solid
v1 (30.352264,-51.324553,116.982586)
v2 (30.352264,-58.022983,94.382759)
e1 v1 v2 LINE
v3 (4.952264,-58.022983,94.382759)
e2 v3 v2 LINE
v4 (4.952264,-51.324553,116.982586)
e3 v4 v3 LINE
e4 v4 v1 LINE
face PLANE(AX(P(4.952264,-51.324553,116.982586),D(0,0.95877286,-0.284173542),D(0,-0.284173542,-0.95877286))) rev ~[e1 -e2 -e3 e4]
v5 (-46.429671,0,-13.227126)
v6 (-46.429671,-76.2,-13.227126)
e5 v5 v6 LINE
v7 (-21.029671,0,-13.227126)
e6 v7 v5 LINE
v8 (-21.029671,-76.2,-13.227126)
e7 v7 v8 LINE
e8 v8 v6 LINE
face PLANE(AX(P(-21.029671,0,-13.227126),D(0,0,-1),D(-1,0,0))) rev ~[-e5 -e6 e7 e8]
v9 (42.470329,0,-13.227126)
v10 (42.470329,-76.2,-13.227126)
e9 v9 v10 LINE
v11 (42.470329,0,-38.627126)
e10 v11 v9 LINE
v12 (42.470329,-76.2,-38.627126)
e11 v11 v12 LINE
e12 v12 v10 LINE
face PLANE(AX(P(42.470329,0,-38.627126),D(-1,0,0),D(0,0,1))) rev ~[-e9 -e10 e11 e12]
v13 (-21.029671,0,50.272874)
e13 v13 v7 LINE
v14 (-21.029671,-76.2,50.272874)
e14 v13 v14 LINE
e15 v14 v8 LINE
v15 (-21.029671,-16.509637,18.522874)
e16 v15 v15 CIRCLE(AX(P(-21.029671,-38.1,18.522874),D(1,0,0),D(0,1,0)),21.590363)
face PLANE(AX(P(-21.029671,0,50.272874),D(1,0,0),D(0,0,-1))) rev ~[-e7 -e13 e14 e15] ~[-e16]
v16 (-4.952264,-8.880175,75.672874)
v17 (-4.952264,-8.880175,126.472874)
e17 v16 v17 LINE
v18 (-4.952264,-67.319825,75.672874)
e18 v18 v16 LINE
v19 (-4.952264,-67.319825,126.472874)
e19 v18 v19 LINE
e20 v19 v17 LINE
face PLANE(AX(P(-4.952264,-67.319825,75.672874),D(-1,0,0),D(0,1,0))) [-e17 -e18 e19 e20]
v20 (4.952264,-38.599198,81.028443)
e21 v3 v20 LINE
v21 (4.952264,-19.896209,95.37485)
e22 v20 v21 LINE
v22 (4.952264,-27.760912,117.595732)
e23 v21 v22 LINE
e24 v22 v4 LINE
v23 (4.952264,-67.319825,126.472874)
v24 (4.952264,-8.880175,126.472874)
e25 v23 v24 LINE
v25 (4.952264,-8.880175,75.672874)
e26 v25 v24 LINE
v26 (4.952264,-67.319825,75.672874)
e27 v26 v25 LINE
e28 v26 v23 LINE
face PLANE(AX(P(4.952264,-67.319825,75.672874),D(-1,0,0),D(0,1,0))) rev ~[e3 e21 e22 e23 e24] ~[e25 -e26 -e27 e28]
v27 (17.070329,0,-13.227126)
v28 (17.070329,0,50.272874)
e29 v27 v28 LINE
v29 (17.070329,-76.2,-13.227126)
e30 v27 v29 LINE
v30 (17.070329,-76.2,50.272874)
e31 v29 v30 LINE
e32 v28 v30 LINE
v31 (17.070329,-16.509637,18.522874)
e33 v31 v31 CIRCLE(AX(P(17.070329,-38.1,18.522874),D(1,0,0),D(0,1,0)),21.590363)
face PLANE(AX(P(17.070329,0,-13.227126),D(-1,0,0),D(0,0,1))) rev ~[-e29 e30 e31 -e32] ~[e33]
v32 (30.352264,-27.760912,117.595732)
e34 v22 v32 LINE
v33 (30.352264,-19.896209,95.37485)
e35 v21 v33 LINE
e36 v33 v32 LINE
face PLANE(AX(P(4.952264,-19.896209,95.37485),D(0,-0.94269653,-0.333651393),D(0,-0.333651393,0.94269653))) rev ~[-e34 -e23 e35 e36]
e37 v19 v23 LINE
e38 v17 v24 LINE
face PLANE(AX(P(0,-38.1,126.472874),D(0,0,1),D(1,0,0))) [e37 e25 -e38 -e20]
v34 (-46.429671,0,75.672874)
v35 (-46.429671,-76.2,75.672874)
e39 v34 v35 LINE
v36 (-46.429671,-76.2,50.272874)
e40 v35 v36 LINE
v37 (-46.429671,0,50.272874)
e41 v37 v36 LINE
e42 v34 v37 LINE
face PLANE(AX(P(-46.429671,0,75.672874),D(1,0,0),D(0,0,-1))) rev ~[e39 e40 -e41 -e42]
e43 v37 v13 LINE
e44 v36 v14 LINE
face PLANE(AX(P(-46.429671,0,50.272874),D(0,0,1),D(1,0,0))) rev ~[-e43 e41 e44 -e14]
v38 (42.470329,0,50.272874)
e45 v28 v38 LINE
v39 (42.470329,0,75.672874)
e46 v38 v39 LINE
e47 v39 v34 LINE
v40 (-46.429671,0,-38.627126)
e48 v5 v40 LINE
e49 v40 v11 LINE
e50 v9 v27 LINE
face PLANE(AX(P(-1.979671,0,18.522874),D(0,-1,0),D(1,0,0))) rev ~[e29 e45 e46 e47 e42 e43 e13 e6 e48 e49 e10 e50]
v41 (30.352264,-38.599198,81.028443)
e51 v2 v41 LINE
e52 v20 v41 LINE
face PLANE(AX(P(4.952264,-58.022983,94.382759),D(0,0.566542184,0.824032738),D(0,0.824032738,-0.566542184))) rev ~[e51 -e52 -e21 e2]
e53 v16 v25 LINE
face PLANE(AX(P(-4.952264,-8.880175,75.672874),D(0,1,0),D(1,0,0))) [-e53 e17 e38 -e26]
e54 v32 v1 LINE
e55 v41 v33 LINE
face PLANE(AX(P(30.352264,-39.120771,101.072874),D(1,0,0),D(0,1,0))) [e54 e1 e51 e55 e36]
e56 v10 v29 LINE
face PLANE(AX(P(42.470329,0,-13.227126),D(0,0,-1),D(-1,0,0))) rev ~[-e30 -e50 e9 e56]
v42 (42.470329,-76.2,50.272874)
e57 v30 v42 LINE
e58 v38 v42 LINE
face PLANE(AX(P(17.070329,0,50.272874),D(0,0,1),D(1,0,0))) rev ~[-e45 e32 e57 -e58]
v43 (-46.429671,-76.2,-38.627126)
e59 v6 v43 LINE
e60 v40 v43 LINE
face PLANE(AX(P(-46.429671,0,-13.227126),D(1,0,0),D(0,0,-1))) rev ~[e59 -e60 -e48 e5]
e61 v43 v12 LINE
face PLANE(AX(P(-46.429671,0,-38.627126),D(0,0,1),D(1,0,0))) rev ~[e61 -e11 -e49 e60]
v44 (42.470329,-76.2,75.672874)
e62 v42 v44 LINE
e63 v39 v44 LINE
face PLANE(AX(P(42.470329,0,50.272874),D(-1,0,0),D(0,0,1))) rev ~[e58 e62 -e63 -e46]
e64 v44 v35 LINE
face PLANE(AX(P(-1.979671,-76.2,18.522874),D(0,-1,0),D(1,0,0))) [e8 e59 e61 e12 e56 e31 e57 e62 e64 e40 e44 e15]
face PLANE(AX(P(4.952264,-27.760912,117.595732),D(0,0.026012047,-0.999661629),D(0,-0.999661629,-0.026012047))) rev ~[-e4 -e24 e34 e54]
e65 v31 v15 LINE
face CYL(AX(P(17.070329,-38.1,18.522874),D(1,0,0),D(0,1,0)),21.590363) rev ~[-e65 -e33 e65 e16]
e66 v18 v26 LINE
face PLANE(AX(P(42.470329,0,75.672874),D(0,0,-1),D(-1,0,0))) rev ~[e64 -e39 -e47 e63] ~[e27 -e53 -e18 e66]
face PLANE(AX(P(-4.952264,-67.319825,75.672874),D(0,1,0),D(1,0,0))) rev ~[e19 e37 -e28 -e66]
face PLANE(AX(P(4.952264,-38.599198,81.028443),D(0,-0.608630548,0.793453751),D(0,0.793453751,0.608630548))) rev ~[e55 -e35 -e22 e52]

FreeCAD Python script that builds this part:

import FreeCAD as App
import Part
import Sketcher
Q = App.Units.Quantity


def add_polygon(sketch, points):
    """Adds a closed chain of lines whose ends are joined by coincident constraints."""
    first, n = sketch.GeometryCount, len(points)
    for a, b in zip(points, points[1:] + points[:1]):
        sketch.addGeometry(Part.LineSegment(App.Vector(*a, 0), App.Vector(*b, 0)), False)
    for i in range(n):
        sketch.addConstraint(Sketcher.Constraint("Coincident", first + i, 2, first + (i + 1) % n, 1))

doc = App.newDocument("Part")
body = doc.addObject("PartDesign::Body", "Body")

# Sketch on XZ plane
sketch1 = doc.addObject("Sketcher::SketchObject", "Sketch")
body.addObject(sketch1)
sketch1.AttachmentSupport = (doc.XZ_Plane, [""])
sketch1.MapMode = "FlatFace"
add_polygon(sketch1, [(-46, -13), (-46, -39), (42, -39), (42, -13), (17, -13), (17, 50), (42, 50), (42, 76), (-46, 76), (-46, 50), (-21, 50), (-21, -13)])  # lines 0-11
sketch1.addConstraint(Sketcher.Constraint("Vertical", 0))
sketch1.addConstraint(Sketcher.Constraint("Horizontal", 1))
sketch1.addConstraint(Sketcher.Constraint("Vertical", 2))
sketch1.addConstraint(Sketcher.Constraint("Horizontal", 3))
sketch1.addConstraint(Sketcher.Constraint("Vertical", 4))
sketch1.addConstraint(Sketcher.Constraint("Horizontal", 5))
sketch1.addConstraint(Sketcher.Constraint("Vertical", 6))
sketch1.addConstraint(Sketcher.Constraint("Horizontal", 7))
sketch1.addConstraint(Sketcher.Constraint("Vertical", 8))
sketch1.addConstraint(Sketcher.Constraint("Horizontal", 9))
sketch1.addConstraint(Sketcher.Constraint("Vertical", 10))
sketch1.addConstraint(Sketcher.Constraint("Horizontal", 11))
sketch1.addConstraint(Sketcher.Constraint("Horizontal", 5, 2, 8, 2))
sketch1.addConstraint(Sketcher.Constraint("Horizontal", 3, 2, 10, 2))
sketch1.addConstraint(Sketcher.Constraint("Vertical", 2, 2, 5, 2))
sketch1.addConstraint(Sketcher.Constraint("Vertical", 0, 2, 7, 2))
sketch1.addConstraint(Sketcher.Constraint("Equal", 5, 9))
sketch1.addConstraint(Sketcher.Constraint("Equal", 11, 0))
sketch1.addConstraint(Sketcher.Constraint("Equal", 2, 6))
sketch1.addConstraint(Sketcher.Constraint("DistanceX", 3, 2, 3, 1, Q("1 in")))
sketch1.addConstraint(Sketcher.Constraint("DistanceX", 1, 1, 1, 2, Q("3.5 in")))
sketch1.addConstraint(Sketcher.Constraint("DistanceY", 4, 1, 4, 2, Q("2.5 in")))
sketch1.addConstraint(Sketcher.Constraint("DistanceX", 0, 2, -1, 1, 46.429671))
sketch1.addConstraint(Sketcher.Constraint("DistanceY", 0, 2, -1, 1, 38.627126))
pad1 = doc.addObject("PartDesign::Pad", "Pad")
body.addObject(pad1)
pad1.Profile = sketch1
pad1.Length = Q("3 in")

# Sketch on YZ plane
sketch2 = doc.addObject("Sketcher::SketchObject", "Sketch001")
body.addObject(sketch2)
sketch2.AttachmentSupport = (doc.YZ_Plane, [""])
sketch2.MapMode = "FlatFace"
sketch2.AttachmentOffset = App.Placement(App.Vector(0, 0, 17.070329), App.Rotation())
sketch2.addGeometry(Part.Circle(App.Vector(-38, 19, 0), App.Vector(0, 0, 1), 22), False)
sketch2.addConstraint(Sketcher.Constraint("DistanceX", 0, 3, -1, 1, Q("1.5 in")))
sketch2.addConstraint(Sketcher.Constraint("Diameter", 0, 43.180726))
sketch2.addConstraint(Sketcher.Constraint("DistanceY", -1, 1, 0, 3, 18.522874))
pocket1 = doc.addObject("PartDesign::Pocket", "Pocket")
body.addObject(pocket1)
pocket1.Profile = sketch2
pocket1.Type = "ThroughAll"

# Sketch on XY plane
sketch3 = doc.addObject("Sketcher::SketchObject", "Sketch002")
body.addObject(sketch3)
sketch3.AttachmentSupport = (doc.XY_Plane, [""])
sketch3.MapMode = "FlatFace"
sketch3.AttachmentOffset = App.Placement(App.Vector(0, 0, 75.672874), App.Rotation())
add_polygon(sketch3, [(-5, -9), (-5, -67), (5, -67), (5, -9)])  # lines 0-3
sketch3.addConstraint(Sketcher.Constraint("Vertical", 0))
sketch3.addConstraint(Sketcher.Constraint("Horizontal", 1))
sketch3.addConstraint(Sketcher.Constraint("Vertical", 2))
sketch3.addConstraint(Sketcher.Constraint("Horizontal", 3))
sketch3.addConstraint(Sketcher.Constraint("DistanceX", 1, 1, 1, 2, 9.904528))
sketch3.addConstraint(Sketcher.Constraint("DistanceY", 0, 2, 0, 1, 58.43965))
sketch3.addConstraint(Sketcher.Constraint("DistanceX", 0, 2, -1, 1, 4.952264))
sketch3.addConstraint(Sketcher.Constraint("DistanceY", 0, 2, -1, 1, 67.319825))
pad2 = doc.addObject("PartDesign::Pad", "Pad001")
body.addObject(pad2)
pad2.Profile = sketch3
pad2.Length = Q("2 in")

# Sketch on YZ plane
sketch4 = doc.addObject("Sketcher::SketchObject", "Sketch003")
body.addObject(sketch4)
sketch4.AttachmentSupport = (doc.YZ_Plane, [""])
sketch4.MapMode = "FlatFace"
sketch4.AttachmentOffset = App.Placement(App.Vector(0, 0, 4.952264), App.Rotation())
add_polygon(sketch4, [(-19.896209, 95.37485), (-27.760912, 117.595732), (-51.324553, 116.982586), (-58.022983, 94.382759), (-38.599198, 81.028443)])  # lines 0-4
sketch4.addConstraint(Sketcher.Constraint("Distance", 3, 23.571618))
sketch4.addConstraint(Sketcher.Constraint("Distance", 4, 23.571618))
sketch4.addConstraint(Sketcher.Constraint("DistanceY", -1, 1, 0, 2, 117.595732))
sketch4.addConstraint(Sketcher.Constraint("DistanceY", -1, 1, 2, 2, 94.382759))
sketch4.addConstraint(Sketcher.Constraint("DistanceX", 4, 2, -1, 1, 19.896209))
sketch4.addConstraint(Sketcher.Constraint("DistanceY", -1, 1, 4, 2, 95.37485))
sketch4.addConstraint(Sketcher.Constraint("DistanceX", 1, 2, 0, 2, 23.563641))
sketch4.addConstraint(Sketcher.Constraint("DistanceX", 2, 2, 1, 2, 6.69843))
sketch4.addConstraint(Sketcher.Constraint("DistanceY", 3, 2, 0, 2, 36.567289))
sketch4.addConstraint(Sketcher.Constraint("Distance", 1, 23.571617))
pad3 = doc.addObject("PartDesign::Pad", "Pad002")
body.addObject(pad3)
pad3.Profile = sketch4
pad3.Length = Q("1 in")

doc.recompute()
